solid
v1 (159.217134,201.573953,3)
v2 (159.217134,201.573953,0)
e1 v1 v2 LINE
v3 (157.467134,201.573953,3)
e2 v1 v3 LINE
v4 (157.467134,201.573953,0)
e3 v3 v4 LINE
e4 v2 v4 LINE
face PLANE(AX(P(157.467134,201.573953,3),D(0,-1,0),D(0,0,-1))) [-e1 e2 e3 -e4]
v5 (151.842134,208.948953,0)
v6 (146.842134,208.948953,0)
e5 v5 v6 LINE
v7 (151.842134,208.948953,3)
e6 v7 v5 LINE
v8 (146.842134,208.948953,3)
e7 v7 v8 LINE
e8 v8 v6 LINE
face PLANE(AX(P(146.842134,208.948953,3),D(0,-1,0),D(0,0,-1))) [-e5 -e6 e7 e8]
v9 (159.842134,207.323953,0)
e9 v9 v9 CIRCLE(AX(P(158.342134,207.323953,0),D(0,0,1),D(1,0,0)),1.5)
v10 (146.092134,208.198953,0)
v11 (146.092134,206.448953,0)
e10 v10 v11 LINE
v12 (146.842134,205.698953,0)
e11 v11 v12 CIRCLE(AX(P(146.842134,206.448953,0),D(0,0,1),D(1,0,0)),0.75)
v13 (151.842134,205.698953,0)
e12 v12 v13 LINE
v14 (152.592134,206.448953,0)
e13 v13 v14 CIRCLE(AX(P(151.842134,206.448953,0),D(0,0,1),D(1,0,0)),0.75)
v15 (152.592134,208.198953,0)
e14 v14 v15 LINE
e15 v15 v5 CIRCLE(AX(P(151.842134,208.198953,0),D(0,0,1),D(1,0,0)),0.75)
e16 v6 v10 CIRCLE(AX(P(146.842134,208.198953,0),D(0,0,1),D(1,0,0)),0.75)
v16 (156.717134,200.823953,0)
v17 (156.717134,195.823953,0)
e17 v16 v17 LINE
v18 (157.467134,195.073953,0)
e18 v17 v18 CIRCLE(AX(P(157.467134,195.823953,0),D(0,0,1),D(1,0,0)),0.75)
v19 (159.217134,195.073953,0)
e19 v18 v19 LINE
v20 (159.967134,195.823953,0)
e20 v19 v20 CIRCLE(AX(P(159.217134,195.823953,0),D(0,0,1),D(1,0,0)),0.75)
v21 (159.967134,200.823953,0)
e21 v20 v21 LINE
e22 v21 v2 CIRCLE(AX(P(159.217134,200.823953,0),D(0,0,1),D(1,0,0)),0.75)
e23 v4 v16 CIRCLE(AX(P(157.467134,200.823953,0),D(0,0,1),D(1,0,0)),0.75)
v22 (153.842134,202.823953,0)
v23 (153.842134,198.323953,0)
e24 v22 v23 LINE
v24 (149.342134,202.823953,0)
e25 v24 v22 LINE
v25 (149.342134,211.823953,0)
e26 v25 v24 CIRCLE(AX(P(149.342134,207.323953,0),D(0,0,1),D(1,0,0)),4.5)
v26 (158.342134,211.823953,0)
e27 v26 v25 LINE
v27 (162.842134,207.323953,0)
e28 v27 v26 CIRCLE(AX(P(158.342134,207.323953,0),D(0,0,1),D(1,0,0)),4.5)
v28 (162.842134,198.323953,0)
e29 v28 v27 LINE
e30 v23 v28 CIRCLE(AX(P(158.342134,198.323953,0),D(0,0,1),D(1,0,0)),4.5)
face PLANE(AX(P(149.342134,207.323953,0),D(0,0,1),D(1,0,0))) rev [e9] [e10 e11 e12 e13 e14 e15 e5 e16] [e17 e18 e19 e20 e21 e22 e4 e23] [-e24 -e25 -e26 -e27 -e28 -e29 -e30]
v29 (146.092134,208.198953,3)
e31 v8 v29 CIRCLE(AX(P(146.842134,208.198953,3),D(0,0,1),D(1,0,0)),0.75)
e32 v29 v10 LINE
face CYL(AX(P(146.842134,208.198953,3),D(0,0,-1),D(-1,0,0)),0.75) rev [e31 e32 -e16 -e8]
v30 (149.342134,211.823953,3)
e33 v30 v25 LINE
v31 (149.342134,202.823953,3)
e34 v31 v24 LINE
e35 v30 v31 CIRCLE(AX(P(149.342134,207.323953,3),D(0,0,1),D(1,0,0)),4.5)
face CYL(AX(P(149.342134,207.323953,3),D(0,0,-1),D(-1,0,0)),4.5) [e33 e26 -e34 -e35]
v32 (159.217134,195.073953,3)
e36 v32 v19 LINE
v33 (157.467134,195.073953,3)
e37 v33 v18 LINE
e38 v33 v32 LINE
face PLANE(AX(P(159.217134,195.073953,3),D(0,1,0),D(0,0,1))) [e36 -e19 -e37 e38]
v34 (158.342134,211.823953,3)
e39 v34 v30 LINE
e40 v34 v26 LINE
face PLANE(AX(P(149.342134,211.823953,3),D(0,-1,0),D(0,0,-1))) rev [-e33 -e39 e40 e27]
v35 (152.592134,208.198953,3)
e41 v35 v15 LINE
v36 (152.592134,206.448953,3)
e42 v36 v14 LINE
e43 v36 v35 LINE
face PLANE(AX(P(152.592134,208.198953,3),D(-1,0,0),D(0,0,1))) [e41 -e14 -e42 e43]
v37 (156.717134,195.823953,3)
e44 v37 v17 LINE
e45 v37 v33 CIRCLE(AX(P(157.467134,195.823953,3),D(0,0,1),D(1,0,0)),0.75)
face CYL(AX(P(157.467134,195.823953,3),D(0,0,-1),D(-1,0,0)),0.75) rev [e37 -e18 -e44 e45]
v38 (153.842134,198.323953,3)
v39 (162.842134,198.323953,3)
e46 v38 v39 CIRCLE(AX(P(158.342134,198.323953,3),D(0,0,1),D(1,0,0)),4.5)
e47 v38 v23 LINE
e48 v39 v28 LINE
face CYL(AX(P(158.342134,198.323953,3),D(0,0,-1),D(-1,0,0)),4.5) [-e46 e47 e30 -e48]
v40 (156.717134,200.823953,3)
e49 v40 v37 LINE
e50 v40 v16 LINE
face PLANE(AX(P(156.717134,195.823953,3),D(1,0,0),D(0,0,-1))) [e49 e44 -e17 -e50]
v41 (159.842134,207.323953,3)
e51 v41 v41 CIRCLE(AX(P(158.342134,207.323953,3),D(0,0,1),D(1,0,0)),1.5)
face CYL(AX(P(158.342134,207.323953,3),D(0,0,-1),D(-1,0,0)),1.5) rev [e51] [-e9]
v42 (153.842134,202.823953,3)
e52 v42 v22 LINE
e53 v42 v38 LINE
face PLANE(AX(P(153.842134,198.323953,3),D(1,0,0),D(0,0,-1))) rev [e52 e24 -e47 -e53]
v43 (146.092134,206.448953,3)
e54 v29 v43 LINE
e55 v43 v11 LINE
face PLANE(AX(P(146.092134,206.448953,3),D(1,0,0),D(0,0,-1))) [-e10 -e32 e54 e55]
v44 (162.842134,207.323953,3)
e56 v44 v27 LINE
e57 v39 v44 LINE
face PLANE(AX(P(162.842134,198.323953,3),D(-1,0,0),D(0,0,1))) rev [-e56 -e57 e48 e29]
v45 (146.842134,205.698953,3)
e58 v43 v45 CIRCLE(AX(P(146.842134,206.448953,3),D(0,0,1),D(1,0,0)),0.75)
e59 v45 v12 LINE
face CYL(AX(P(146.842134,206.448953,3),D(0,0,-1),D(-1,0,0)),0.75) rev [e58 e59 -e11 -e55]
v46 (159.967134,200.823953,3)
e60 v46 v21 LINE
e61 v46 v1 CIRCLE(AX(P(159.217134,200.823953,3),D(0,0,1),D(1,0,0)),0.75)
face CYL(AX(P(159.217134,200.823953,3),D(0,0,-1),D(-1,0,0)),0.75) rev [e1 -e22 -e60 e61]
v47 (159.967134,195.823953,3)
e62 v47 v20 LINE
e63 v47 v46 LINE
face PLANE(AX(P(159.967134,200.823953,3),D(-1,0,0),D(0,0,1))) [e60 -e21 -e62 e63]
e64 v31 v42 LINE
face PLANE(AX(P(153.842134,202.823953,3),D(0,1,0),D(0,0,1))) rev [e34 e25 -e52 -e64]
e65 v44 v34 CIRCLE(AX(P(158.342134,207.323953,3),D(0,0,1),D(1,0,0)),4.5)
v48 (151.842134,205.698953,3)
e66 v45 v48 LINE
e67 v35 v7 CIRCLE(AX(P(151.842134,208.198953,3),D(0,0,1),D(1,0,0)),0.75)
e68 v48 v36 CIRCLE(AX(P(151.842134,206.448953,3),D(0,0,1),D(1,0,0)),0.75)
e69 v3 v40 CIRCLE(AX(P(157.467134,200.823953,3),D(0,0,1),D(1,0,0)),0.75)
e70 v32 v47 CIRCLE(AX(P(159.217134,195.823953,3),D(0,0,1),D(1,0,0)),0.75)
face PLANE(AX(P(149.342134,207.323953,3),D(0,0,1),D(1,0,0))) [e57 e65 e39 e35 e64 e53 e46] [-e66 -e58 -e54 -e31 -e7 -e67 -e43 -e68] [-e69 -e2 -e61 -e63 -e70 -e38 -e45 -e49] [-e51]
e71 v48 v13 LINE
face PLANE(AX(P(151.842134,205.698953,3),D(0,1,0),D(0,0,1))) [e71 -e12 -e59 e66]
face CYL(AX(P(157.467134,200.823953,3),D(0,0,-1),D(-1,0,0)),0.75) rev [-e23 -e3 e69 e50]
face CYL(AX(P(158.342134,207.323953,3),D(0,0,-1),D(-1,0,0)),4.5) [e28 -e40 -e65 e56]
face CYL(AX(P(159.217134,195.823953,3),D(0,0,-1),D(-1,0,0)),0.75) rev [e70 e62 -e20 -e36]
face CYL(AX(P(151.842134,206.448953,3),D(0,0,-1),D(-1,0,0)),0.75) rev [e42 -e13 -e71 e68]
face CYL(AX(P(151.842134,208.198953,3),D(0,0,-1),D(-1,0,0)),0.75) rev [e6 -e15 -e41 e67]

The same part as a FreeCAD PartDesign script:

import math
import FreeCAD as App
import Part
import Sketcher

V = App.Vector
Q = App.Units.Quantity

doc = App.newDocument("Part")
body = doc.addObject("PartDesign::Body", "Body")

sketch1 = body.newObject("Sketcher::SketchObject", "Sketch")
sketch1.AttachmentSupport = (doc.getObject("XY_Plane"), [""])
sketch1.MapMode = "FlatFace"
sketch1.addGeometry(Part.LineSegment(V(158.342134, 211.823953, 0), V(149.342134, 211.823953, 0)), False)
sketch1.addGeometry(Part.ArcOfCircle(Part.Circle(V(149.342134, 207.323953, 0), V(0, 0, 1), 4.5), math.radians(90), math.radians(270)), False)
sketch1.addGeometry(Part.LineSegment(V(149.342134, 202.823953, 0), V(153.842134, 202.823953, 0)), False)
sketch1.addGeometry(Part.LineSegment(V(153.842134, 202.823953, 0), V(153.842134, 198.323953, 0)), False)
sketch1.addGeometry(Part.ArcOfCircle(Part.Circle(V(158.342134, 198.323953, 0), V(0, 0, 1), 4.5), math.radians(180), math.radians(360)), False)
sketch1.addGeometry(Part.LineSegment(V(162.842134, 198.323953, 0), V(162.842134, 207.323953, 0)), False)
sketch1.addGeometry(Part.ArcOfCircle(Part.Circle(V(158.342134, 207.323953, 0), V(0, 0, 1), 4.5), math.radians(0), math.radians(90)), False)
sketch1.addGeometry(Part.LineSegment(V(156.717134, 195.823953, 0), V(156.717134, 200.823953, 0)), False)
sketch1.addGeometry(Part.ArcOfCircle(Part.Circle(V(157.467134, 200.823953, 0), V(0, 0, 1), 0.75), math.radians(90), math.radians(180)), False)
sketch1.addGeometry(Part.LineSegment(V(157.467134, 201.573953, 0), V(159.217134, 201.573953, 0)), False)
sketch1.addGeometry(Part.ArcOfCircle(Part.Circle(V(159.217134, 200.823953, 0), V(0, 0, 1), 0.75), math.radians(0), math.radians(90)), False)
sketch1.addGeometry(Part.LineSegment(V(159.967134, 200.823953, 0), V(159.967134, 195.823953, 0)), False)
sketch1.addGeometry(Part.ArcOfCircle(Part.Circle(V(159.217134, 195.823953, 0), V(0, 0, 1), 0.75), math.radians(-90), math.radians(0)), False)
sketch1.addGeometry(Part.LineSegment(V(159.217134, 195.073953, 0), V(157.467134, 195.073953, 0)), False)
sketch1.addGeometry(Part.ArcOfCircle(Part.Circle(V(157.467134, 195.823953, 0), V(0, 0, 1), 0.75), math.radians(180), math.radians(270)), False)
sketch1.addGeometry(Part.Circle(V(158.342134, 207.323953, 0), V(0, 0, 1), 1.5), False)
sketch1.addGeometry(Part.LineSegment(V(151.842134, 205.698953, 0), V(146.842134, 205.698953, 0)), False)
sketch1.addGeometry(Part.ArcOfCircle(Part.Circle(V(146.842134, 206.448953, 0), V(0, 0, 1), 0.75), math.radians(180), math.radians(270)), False)
sketch1.addGeometry(Part.LineSegment(V(146.092134, 206.448953, 0), V(146.092134, 208.198953, 0)), False)
sketch1.addGeometry(Part.ArcOfCircle(Part.Circle(V(146.842134, 208.198953, 0), V(0, 0, 1), 0.75), math.radians(90), math.radians(180)), False)
sketch1.addGeometry(Part.LineSegment(V(146.842134, 208.948953, 0), V(151.842134, 208.948953, 0)), False)
sketch1.addGeometry(Part.ArcOfCircle(Part.Circle(V(151.842134, 208.198953, 0), V(0, 0, 1), 0.75), math.radians(0), math.radians(90)), False)
sketch1.addGeometry(Part.LineSegment(V(152.592134, 208.198953, 0), V(152.592134, 206.448953, 0)), False)
sketch1.addGeometry(Part.ArcOfCircle(Part.Circle(V(151.842134, 206.448953, 0), V(0, 0, 1), 0.75), math.radians(-90), math.radians(0)), False)
sketch1.addConstraint(Sketcher.Constraint("Tangent", 0, 2, 1, 1))
sketch1.addConstraint(Sketcher.Constraint("Tangent", 1, 2, 2, 1))
sketch1.addConstraint(Sketcher.Constraint("Coincident", 2, 2, 3, 1))
sketch1.addConstraint(Sketcher.Constraint("Tangent", 3, 2, 4, 1))
sketch1.addConstraint(Sketcher.Constraint("Tangent", 4, 2, 5, 1))
sketch1.addConstraint(Sketcher.Constraint("Tangent", 5, 2, 6, 1))
sketch1.addConstraint(Sketcher.Constraint("Tangent", 6, 2, 0, 1))
sketch1.addConstraint(Sketcher.Constraint("Tangent", 7, 2, 8, 2))
sketch1.addConstraint(Sketcher.Constraint("Tangent", 8, 1, 9, 1))
sketch1.addConstraint(Sketcher.Constraint("Tangent", 9, 2, 10, 2))
sketch1.addConstraint(Sketcher.Constraint("Tangent", 10, 1, 11, 1))
sketch1.addConstraint(Sketcher.Constraint("Tangent", 11, 2, 12, 2))
sketch1.addConstraint(Sketcher.Constraint("Tangent", 12, 1, 13, 1))
sketch1.addConstraint(Sketcher.Constraint("Tangent", 13, 2, 14, 2))
sketch1.addConstraint(Sketcher.Constraint("Tangent", 14, 1, 7, 1))
sketch1.addConstraint(Sketcher.Constraint("Tangent", 16, 2, 17, 2))
sketch1.addConstraint(Sketcher.Constraint("Tangent", 17, 1, 18, 1))
sketch1.addConstraint(Sketcher.Constraint("Tangent", 18, 2, 19, 2))
sketch1.addConstraint(Sketcher.Constraint("Tangent", 19, 1, 20, 1))
sketch1.addConstraint(Sketcher.Constraint("Tangent", 20, 2, 21, 2))
sketch1.addConstraint(Sketcher.Constraint("Tangent", 21, 1, 22, 1))
sketch1.addConstraint(Sketcher.Constraint("Tangent", 22, 2, 23, 2))
sketch1.addConstraint(Sketcher.Constraint("Tangent", 23, 1, 16, 1))
sketch1.addConstraint(Sketcher.Constraint("Horizontal", 0))
sketch1.addConstraint(Sketcher.Constraint("Horizontal", 2))
sketch1.addConstraint(Sketcher.Constraint("Vertical", 3))
sketch1.addConstraint(Sketcher.Constraint("Vertical", 5))
sketch1.addConstraint(Sketcher.Constraint("Vertical", 7))
sketch1.addConstraint(Sketcher.Constraint("Horizontal", 9))
sketch1.addConstraint(Sketcher.Constraint("Vertical", 11))
sketch1.addConstraint(Sketcher.Constraint("Horizontal", 13))
sketch1.addConstraint(Sketcher.Constraint("Horizontal", 16))
sketch1.addConstraint(Sketcher.Constraint("Vertical", 18))
sketch1.addConstraint(Sketcher.Constraint("Horizontal", 20))
sketch1.addConstraint(Sketcher.Constraint("Vertical", 22))
sketch1.addConstraint(Sketcher.Constraint("Coincident", 15, 3, 6, 3))
sketch1.addConstraint(Sketcher.Constraint("Equal", 1, 4))
sketch1.addConstraint(Sketcher.Constraint("Equal", 4, 6))
sketch1.addConstraint(Sketcher.Constraint("Equal", 8, 10))
sketch1.addConstraint(Sketcher.Constraint("Equal", 10, 12))
sketch1.addConstraint(Sketcher.Constraint("Equal", 12, 14))
sketch1.addConstraint(Sketcher.Constraint("Equal", 14, 17))
sketch1.addConstraint(Sketcher.Constraint("Equal", 17, 19))
sketch1.addConstraint(Sketcher.Constraint("Equal", 19, 21))
sketch1.addConstraint(Sketcher.Constraint("Equal", 21, 23))
sketch1.addConstraint(Sketcher.Constraint("Equal", 2, 3))
sketch1.addConstraint(Sketcher.Constraint("Equal", 20, 7))
sketch1.addConstraint(Sketcher.Constraint("Equal", 13, 18))
sketch1.addConstraint(Sketcher.Constraint("Diameter", 15, Q("3 mm")))
sketch1.addConstraint(Sketcher.Constraint("Radius", 1, Q("4.5 mm")))
sketch1.addConstraint(Sketcher.Constraint("DistanceX", 0, 2, 0, 1, Q("9 mm")))
sketch1.addConstraint(Sketcher.Constraint("DistanceX", 16, 2, 16, 1, Q("5 mm")))
sketch1.addConstraint(Sketcher.Constraint("Radius", 8, Q("0.75 mm")))
sketch1.addConstraint(Sketcher.Constraint("DistanceY", 8, 3, 2, 2, Q("2 mm")))
sketch1.addConstraint(Sketcher.Constraint("DistanceX", 23, 3, 2, 2, Q("2 mm")))
sketch1.addConstraint(Sketcher.Constraint("DistanceX", 9, 1, 9, 2, Q("1.75 mm")))
sketch1.addConstraint(Sketcher.Constraint("DistanceX", 8, 3, 4, 3, Q("0.875 mm")))
sketch1.addConstraint(Sketcher.Constraint("DistanceY", 17, 3, 1, 3, Q("0.875 mm")))
sketch1.addConstraint(Sketcher.Constraint("DistanceX", -1, 1, 1, 3, Q("149.342134 mm")))
sketch1.addConstraint(Sketcher.Constraint("DistanceY", -1, 1, 1, 3, Q("207.323953 mm")))
pad1 = body.newObject("PartDesign::Pad", "Pad")
pad1.Profile = sketch1
pad1.Length = 3

doc.recompute()
